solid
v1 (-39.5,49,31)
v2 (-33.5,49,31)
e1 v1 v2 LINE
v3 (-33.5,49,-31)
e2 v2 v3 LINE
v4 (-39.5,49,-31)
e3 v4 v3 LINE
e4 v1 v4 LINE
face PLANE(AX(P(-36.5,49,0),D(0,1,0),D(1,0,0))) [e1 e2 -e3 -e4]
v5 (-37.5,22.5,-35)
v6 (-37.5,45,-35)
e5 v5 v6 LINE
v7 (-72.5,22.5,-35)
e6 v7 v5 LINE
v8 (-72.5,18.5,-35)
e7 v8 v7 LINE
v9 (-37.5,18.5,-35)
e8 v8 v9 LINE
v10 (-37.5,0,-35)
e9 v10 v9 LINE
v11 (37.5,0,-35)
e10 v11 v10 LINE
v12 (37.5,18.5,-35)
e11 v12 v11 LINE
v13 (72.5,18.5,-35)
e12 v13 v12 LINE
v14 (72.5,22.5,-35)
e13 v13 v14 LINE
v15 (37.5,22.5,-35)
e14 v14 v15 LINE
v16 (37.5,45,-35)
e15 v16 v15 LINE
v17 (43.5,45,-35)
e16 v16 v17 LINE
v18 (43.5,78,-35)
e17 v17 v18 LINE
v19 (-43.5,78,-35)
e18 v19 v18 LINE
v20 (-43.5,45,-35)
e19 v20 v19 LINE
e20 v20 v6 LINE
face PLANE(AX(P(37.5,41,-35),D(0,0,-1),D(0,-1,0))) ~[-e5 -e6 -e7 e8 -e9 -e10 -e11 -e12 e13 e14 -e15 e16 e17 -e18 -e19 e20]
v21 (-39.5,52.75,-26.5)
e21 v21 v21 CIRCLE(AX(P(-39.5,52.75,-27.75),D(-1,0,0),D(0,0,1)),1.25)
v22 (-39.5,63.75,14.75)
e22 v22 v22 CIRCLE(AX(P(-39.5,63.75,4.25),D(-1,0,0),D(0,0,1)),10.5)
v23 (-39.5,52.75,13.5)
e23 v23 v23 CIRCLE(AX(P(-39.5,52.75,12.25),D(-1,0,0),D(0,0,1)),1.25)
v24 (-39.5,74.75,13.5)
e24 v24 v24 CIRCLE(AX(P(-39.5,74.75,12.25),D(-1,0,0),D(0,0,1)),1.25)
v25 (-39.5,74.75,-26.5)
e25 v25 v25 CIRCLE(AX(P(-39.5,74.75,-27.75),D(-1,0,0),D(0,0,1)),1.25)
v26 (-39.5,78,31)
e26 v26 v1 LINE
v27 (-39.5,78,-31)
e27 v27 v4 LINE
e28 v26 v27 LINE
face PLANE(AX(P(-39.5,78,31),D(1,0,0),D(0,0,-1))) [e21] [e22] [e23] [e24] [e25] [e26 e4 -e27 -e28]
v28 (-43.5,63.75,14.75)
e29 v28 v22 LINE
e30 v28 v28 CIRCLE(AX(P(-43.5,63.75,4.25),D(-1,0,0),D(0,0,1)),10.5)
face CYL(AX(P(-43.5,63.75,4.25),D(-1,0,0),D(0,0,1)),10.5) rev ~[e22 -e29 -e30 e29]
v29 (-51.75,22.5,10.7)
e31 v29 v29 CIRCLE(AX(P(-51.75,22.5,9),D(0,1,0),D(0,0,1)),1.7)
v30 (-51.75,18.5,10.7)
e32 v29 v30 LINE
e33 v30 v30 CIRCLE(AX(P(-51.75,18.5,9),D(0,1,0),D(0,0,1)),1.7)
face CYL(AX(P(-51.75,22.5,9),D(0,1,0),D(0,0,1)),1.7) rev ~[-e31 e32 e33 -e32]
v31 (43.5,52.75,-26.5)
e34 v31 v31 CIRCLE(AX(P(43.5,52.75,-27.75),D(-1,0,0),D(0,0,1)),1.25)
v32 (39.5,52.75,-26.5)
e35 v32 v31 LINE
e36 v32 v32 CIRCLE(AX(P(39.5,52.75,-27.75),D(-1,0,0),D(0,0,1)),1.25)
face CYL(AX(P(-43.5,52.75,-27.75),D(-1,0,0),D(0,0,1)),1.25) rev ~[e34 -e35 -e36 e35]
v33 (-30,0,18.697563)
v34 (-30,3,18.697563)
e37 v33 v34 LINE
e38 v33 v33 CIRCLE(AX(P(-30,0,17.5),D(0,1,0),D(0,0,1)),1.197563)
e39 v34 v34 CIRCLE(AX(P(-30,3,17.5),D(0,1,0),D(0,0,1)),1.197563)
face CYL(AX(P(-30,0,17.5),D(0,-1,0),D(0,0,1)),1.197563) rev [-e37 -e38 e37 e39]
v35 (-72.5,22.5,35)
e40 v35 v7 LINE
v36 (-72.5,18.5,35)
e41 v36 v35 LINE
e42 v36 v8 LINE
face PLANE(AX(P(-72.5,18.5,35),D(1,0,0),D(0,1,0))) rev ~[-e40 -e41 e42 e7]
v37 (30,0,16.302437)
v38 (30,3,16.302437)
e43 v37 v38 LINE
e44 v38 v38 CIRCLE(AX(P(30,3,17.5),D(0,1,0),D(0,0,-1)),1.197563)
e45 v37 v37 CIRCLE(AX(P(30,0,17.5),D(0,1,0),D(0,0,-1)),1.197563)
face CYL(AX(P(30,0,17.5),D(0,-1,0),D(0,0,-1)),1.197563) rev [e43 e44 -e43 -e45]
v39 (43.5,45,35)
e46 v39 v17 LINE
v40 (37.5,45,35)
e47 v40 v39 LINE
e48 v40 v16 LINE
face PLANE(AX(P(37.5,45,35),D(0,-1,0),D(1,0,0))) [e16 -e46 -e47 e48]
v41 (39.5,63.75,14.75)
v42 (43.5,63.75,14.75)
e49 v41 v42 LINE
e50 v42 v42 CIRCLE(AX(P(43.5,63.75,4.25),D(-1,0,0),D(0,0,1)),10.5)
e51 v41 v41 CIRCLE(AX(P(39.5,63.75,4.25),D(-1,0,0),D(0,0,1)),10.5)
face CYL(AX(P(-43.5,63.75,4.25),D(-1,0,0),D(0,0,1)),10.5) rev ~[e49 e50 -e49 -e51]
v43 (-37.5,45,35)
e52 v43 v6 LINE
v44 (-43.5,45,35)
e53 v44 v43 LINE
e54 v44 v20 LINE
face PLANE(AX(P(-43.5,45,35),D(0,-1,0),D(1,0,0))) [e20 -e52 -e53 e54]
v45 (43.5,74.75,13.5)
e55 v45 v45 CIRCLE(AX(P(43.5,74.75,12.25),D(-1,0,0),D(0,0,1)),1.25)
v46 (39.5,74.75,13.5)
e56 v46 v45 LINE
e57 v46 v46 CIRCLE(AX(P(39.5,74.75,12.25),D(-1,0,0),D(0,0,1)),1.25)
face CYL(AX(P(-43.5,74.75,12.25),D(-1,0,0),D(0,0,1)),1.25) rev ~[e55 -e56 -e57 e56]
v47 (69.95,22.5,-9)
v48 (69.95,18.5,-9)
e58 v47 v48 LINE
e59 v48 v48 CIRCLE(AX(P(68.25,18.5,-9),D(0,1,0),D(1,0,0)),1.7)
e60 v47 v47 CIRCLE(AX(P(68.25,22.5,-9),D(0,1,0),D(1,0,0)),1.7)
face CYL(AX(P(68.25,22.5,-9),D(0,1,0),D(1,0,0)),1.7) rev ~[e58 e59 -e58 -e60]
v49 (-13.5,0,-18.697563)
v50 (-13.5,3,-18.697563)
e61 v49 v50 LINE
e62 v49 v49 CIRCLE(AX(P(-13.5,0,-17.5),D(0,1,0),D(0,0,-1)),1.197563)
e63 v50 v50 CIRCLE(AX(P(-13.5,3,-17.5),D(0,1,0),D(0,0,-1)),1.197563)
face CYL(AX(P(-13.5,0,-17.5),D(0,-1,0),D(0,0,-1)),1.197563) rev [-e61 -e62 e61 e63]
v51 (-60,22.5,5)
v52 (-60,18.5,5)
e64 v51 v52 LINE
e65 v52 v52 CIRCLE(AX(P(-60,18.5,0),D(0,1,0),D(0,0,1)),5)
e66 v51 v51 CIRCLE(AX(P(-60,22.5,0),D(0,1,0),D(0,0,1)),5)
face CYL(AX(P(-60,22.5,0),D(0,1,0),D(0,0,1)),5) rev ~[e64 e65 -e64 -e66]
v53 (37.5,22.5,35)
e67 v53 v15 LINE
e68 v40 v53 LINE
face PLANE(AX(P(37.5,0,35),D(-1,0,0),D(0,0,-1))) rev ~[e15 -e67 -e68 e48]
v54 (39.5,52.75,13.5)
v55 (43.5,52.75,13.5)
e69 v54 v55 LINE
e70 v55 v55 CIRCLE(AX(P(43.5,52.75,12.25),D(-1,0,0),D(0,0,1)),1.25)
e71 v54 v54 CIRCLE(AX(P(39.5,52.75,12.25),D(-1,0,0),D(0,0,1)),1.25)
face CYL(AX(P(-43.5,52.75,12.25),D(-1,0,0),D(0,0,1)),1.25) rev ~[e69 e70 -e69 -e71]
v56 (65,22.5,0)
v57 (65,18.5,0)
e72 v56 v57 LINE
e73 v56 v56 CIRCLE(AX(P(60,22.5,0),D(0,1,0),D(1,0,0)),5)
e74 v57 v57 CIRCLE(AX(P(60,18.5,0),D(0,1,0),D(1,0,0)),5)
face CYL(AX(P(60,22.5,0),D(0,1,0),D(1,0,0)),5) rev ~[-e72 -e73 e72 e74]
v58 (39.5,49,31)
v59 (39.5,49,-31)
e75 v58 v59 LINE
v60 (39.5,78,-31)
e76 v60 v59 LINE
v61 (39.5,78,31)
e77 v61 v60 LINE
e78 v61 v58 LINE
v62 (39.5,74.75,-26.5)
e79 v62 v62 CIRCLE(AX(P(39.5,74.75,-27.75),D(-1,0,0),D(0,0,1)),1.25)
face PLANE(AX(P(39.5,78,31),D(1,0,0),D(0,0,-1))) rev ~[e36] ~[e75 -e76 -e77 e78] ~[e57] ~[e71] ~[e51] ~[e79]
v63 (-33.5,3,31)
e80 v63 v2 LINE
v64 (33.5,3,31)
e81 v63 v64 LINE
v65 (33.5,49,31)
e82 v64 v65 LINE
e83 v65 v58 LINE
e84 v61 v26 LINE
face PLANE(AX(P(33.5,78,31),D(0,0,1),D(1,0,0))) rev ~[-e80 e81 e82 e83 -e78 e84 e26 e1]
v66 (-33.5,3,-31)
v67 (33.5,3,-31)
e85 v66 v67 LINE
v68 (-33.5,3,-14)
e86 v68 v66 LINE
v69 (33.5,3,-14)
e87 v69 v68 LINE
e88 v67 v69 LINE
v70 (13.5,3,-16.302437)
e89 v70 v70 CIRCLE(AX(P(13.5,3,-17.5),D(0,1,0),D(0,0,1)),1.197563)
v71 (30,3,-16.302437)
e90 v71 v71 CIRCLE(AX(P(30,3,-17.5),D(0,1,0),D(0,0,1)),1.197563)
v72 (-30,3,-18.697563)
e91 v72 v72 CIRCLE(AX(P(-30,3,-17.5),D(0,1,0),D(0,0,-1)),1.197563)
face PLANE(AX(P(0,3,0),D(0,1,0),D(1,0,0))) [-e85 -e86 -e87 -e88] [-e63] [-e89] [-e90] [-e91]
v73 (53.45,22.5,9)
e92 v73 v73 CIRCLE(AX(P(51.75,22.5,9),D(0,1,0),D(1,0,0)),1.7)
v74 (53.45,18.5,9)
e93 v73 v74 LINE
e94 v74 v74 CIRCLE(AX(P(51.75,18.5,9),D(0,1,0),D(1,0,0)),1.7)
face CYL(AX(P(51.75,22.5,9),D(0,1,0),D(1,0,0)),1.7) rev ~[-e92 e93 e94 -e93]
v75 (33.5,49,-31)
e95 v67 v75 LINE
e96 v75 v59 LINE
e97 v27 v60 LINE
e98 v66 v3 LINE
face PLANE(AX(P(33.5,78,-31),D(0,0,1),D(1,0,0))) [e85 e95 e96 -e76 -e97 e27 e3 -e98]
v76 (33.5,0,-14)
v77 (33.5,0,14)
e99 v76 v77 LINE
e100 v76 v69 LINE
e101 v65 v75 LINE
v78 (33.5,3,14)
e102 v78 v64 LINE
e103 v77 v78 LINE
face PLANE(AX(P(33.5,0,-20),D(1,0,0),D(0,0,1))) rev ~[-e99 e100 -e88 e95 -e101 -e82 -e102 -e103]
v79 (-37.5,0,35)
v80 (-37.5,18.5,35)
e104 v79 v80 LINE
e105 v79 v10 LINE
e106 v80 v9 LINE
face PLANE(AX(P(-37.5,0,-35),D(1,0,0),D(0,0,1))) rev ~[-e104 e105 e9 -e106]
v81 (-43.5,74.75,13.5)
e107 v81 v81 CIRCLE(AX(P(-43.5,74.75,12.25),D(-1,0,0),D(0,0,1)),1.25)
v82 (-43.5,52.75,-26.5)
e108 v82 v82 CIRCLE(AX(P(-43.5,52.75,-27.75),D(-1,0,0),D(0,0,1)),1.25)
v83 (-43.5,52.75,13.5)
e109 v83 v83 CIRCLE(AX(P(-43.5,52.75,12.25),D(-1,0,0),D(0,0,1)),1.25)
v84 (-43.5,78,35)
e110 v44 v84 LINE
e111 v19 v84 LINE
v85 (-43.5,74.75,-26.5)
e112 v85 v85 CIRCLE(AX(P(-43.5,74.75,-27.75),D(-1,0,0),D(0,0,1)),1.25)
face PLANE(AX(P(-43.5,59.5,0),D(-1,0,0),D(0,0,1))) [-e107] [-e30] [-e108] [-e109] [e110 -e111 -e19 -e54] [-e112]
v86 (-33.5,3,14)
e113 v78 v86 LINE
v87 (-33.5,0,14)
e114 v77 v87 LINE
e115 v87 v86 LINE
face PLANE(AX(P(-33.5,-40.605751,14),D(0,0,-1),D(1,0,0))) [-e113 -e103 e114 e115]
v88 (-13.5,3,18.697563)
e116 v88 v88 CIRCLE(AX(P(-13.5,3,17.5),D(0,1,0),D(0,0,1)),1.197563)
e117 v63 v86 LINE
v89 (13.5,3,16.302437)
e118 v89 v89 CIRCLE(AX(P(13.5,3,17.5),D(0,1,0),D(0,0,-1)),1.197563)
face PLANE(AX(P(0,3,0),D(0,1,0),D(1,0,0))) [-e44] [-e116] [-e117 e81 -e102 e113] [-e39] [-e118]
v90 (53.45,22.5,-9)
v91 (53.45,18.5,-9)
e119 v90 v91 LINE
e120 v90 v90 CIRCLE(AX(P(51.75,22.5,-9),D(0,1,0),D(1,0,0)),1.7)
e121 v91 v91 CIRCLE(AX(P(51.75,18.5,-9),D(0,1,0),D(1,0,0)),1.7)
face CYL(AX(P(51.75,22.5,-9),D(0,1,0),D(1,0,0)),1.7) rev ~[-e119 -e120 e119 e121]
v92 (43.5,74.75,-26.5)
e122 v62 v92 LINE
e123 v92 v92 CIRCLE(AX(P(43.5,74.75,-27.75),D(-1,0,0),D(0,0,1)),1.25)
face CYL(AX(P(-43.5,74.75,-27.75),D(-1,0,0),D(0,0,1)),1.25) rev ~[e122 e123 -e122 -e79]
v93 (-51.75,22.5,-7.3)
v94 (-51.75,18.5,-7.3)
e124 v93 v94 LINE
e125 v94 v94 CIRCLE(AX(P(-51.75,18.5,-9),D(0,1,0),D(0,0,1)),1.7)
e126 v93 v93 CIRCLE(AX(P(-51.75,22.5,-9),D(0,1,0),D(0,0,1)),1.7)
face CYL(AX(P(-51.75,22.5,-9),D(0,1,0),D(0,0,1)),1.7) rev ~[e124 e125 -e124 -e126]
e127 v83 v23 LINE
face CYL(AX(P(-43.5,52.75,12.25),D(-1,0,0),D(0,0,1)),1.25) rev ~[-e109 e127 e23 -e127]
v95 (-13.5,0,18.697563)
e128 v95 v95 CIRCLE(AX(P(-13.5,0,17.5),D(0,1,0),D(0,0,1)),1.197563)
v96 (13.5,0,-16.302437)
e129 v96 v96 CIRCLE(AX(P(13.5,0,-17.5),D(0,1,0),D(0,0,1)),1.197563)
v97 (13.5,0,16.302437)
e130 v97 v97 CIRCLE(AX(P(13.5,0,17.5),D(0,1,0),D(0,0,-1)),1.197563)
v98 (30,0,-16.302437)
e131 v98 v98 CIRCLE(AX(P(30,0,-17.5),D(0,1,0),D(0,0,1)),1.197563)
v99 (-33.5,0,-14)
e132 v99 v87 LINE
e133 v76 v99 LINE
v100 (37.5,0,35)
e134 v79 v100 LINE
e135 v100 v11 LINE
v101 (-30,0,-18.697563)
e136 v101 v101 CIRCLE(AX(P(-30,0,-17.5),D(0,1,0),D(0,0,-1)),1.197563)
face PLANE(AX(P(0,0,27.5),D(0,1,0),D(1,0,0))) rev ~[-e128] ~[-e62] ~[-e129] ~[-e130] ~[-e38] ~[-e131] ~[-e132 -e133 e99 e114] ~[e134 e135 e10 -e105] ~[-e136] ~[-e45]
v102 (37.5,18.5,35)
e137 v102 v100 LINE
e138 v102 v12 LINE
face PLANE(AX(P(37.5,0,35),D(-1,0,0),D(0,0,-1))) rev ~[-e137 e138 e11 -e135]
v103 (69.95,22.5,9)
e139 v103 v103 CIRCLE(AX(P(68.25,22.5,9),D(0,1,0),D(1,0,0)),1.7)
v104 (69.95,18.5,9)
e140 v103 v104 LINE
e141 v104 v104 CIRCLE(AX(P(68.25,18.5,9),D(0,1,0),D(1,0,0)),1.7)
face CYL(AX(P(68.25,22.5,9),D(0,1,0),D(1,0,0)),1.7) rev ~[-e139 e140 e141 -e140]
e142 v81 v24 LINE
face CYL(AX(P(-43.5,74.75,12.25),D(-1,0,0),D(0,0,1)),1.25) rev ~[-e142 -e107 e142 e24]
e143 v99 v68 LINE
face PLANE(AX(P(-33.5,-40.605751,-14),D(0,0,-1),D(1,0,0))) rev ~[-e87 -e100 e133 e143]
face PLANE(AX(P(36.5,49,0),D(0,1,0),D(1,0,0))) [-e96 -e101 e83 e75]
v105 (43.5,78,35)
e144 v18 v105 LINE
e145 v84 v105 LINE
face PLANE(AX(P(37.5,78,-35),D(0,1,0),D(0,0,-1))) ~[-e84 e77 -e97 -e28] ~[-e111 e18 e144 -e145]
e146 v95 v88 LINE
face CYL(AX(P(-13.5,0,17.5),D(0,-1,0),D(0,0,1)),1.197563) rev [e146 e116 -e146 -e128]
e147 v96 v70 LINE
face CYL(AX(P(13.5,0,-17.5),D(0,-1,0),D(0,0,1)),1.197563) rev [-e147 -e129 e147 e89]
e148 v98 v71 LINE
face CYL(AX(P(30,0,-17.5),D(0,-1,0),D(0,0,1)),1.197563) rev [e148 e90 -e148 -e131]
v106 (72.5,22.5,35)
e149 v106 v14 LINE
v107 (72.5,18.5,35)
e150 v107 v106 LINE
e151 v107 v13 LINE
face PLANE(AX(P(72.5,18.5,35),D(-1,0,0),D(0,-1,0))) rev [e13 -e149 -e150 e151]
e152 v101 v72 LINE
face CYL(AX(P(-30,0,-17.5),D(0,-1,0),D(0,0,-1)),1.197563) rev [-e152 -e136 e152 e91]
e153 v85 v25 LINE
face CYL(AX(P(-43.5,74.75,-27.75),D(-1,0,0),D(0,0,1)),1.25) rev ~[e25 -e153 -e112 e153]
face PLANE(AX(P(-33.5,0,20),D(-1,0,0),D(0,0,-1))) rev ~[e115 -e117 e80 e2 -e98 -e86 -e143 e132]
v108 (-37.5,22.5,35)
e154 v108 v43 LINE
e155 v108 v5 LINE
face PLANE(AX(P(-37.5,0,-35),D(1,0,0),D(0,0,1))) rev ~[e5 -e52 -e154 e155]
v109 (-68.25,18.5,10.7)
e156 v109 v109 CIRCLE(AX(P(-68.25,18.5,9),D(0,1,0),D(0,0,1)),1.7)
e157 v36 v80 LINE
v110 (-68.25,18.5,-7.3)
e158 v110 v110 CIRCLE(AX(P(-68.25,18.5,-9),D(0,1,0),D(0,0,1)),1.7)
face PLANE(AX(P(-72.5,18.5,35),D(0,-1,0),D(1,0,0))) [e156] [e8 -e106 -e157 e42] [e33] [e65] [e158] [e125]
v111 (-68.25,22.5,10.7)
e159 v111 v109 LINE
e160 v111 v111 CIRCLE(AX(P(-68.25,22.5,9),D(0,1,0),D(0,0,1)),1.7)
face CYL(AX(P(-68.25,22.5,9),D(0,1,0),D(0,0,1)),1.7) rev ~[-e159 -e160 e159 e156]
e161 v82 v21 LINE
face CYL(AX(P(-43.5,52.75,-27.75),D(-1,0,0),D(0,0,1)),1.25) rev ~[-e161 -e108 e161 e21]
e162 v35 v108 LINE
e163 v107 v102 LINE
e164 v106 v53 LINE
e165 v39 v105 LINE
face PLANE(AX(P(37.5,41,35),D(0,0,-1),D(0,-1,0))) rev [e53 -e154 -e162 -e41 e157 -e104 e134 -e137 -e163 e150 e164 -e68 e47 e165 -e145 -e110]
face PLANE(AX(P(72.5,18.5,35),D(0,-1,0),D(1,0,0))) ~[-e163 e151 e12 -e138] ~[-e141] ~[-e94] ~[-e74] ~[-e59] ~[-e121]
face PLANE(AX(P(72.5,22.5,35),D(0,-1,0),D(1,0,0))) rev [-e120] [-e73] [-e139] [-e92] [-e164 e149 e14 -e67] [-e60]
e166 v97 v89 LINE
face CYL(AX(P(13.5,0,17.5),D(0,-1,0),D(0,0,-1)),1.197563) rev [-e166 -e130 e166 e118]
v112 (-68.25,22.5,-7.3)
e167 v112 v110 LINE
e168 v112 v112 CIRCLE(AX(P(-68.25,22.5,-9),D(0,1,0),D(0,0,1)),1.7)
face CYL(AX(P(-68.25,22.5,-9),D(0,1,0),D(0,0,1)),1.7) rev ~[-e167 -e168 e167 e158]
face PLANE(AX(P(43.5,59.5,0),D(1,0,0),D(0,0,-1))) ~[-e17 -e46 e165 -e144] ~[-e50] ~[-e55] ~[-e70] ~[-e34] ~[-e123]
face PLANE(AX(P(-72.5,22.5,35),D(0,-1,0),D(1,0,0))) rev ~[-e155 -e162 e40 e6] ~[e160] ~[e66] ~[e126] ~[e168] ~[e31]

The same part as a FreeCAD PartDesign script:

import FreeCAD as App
import Part
import Sketcher
from FreeCAD import Vector

doc = App.newDocument("Part")
body = doc.addObject("PartDesign::Body", "Body")

# Sketch on XZ plane
sketch1 = body.newObject("Sketcher::SketchObject", "Sketch")
sketch1.AttachmentSupport = (doc.getObject("XZ_Plane"), [""])
sketch1.MapMode = "FlatFace"
sketch1.addGeometry([
    Part.LineSegment(Vector(-37.5, -20, 0), Vector(-37.5, 20, 0)),  # 0
    Part.LineSegment(Vector(-37.5, 20, 0), Vector(37.5, 20, 0)),  # 1
    Part.LineSegment(Vector(37.5, 20, 0), Vector(37.5, -20, 0)),  # 2
    Part.LineSegment(Vector(37.5, -20, 0), Vector(-37.5, -20, 0)),  # 3
    Part.Circle(Vector(-30, 17.5, 0), Vector(0, 0, 1), 1.2),  # 4
    Part.Circle(Vector(-13.5, 17.5, 0), Vector(0, 0, 1), 1.2),  # 5
    Part.Circle(Vector(-30, 8.2, 0), Vector(0, 0, 1), 1.7),  # 6
    Part.Circle(Vector(-12, 8.2, 0), Vector(0, 0, 1), 1.7),  # 7
    Part.Circle(Vector(13.5, 17.5, 0), Vector(0, 0, 1), 1.2),  # 8
    Part.Circle(Vector(30, 17.5, 0), Vector(0, 0, 1), 1.2),  # 9
    Part.Circle(Vector(12, 8.2, 0), Vector(0, 0, 1), 1.7),  # 10
    Part.Circle(Vector(30, 8.2, 0), Vector(0, 0, 1), 1.7),  # 11
    Part.Circle(Vector(-21, 0, 0), Vector(0, 0, 1), 5),  # 12
    Part.Circle(Vector(-30, -8.2, 0), Vector(0, 0, 1), 1.7),  # 13
    Part.LineSegment(Vector(2.5, 10, 0), Vector(-2.5, 10, 0)),  # 14
    Part.LineSegment(Vector(-2.5, 10, 0), Vector(-2.5, -10, 0)),  # 15
    Part.LineSegment(Vector(-2.5, -10, 0), Vector(2.5, -10, 0)),  # 16
    Part.LineSegment(Vector(2.5, -10, 0), Vector(2.5, 10, 0)),  # 17
    Part.Circle(Vector(-12, -8.2, 0), Vector(0, 0, 1), 1.7),  # 18
    Part.Circle(Vector(-30, -17.5, 0), Vector(0, 0, 1), 1.2),  # 19
    Part.Circle(Vector(-13.5, -17.5, 0), Vector(0, 0, 1), 1.2),  # 20
    Part.Circle(Vector(12, -8.2, 0), Vector(0, 0, 1), 1.7),  # 21
    Part.Circle(Vector(21, 0, 0), Vector(0, 0, 1), 5),  # 22
    Part.Circle(Vector(30, -8.2, 0), Vector(0, 0, 1), 1.7),  # 23
    Part.Circle(Vector(13.5, -17.5, 0), Vector(0, 0, 1), 1.2),  # 24
    Part.Circle(Vector(30, -17.5, 0), Vector(0, 0, 1), 1.2),  # 25
], False)
sketch1.addConstraint([
    Sketcher.Constraint("Coincident", 0, 2, 1, 1),
    Sketcher.Constraint("Coincident", 1, 2, 2, 1),
    Sketcher.Constraint("Coincident", 2, 2, 3, 1),
    Sketcher.Constraint("Coincident", 3, 2, 0, 1),
    Sketcher.Constraint("Coincident", 14, 2, 15, 1),
    Sketcher.Constraint("Coincident", 15, 2, 16, 1),
    Sketcher.Constraint("Coincident", 16, 2, 17, 1),
    Sketcher.Constraint("Coincident", 17, 2, 14, 1),
    Sketcher.Constraint("Vertical", 0),
    Sketcher.Constraint("Horizontal", 1),
    Sketcher.Constraint("Vertical", 2),
    Sketcher.Constraint("Horizontal", 3),
    Sketcher.Constraint("Horizontal", 14),
    Sketcher.Constraint("Vertical", 15),
    Sketcher.Constraint("Horizontal", 16),
    Sketcher.Constraint("Vertical", 17),
    Sketcher.Constraint("Equal", 4, 5),
    Sketcher.Constraint("Equal", 6, 7),
    Sketcher.Constraint("Equal", 5, 8),
    Sketcher.Constraint("Equal", 8, 9),
    Sketcher.Constraint("Equal", 7, 10),
    Sketcher.Constraint("Equal", 10, 11),
    Sketcher.Constraint("Equal", 11, 13),
    Sketcher.Constraint("Equal", 13, 18),
    Sketcher.Constraint("Equal", 9, 19),
    Sketcher.Constraint("Equal", 19, 20),
    Sketcher.Constraint("Equal", 18, 21),
    Sketcher.Constraint("Equal", 12, 22),
    Sketcher.Constraint("Equal", 21, 23),
    Sketcher.Constraint("Equal", 20, 24),
    Sketcher.Constraint("Equal", 24, 25),
    Sketcher.Constraint("Symmetric", 11, 3, 13, 3, -1, 1),
    Sketcher.Constraint("Symmetric", 10, 3, 18, 3, -1, 1),
    Sketcher.Constraint("Symmetric", 9, 3, 19, 3, -1, 1),
    Sketcher.Constraint("Symmetric", 8, 3, 20, 3, -1, 1),
    Sketcher.Constraint("Symmetric", 7, 3, 21, 3, -1, 1),
    Sketcher.Constraint("Symmetric", 12, 3, 22, 3, -1, 1),
    Sketcher.Constraint("Symmetric", 6, 3, 23, 3, -1, 1),
    Sketcher.Constraint("Symmetric", 5, 3, 24, 3, -1, 1),
    Sketcher.Constraint("Symmetric", 4, 3, 25, 3, -1, 1),
    Sketcher.Constraint("Symmetric", 0, 2, 2, 2, -1, 1),
    Sketcher.Constraint("Symmetric", 14, 2, 16, 2, -1, 1),
    Sketcher.Constraint("Symmetric", 5, 3, 8, 3, -2),
    Sketcher.Constraint("Symmetric", 4, 3, 9, 3, -2),
    Sketcher.Constraint("Symmetric", 7, 3, 10, 3, -2),
    Sketcher.Constraint("Symmetric", 6, 3, 11, 3, -2),
    Sketcher.Constraint("PointOnObject", 12, 3, -1),
    Sketcher.Constraint("Horizontal", 4, 3, 5, 3),
    Sketcher.Constraint("Horizontal", 6, 3, 7, 3),
    Sketcher.Constraint("Vertical", 4, 3, 6, 3),
    Sketcher.Constraint("Diameter", 12, 10.0),
    Sketcher.Constraint("Diameter", 6, 3.4),
    Sketcher.Constraint("DistanceX", 1, 1, 1, 2, 75.0),
    Sketcher.Constraint("DistanceX", 14, 2, 14, 1, 5.0),
    Sketcher.Constraint("DistanceY", 0, 1, 0, 2, 40.0),
    Sketcher.Constraint("DistanceY", 15, 2, 15, 1, 20.0),
    Sketcher.Constraint("DistanceX", 4, 3, -1, 1, 30.0),
    Sketcher.Constraint("DistanceX", 7, 3, -1, 1, 12.0),
    Sketcher.Constraint("DistanceX", 12, 3, -1, 1, 21.0),
    Sketcher.Constraint("DistanceX", 5, 3, 8, 3, 27.0),
    Sketcher.Constraint("DistanceY", -1, 1, 4, 3, 17.5),
    Sketcher.Constraint("DistanceY", 13, 3, 6, 3, 16.5),
    Sketcher.Constraint("Diameter", 4, 2.395127),
])
pad1 = body.newObject("PartDesign::Pad", "Pad")
pad1.Profile = sketch1
pad1.Length = 3
pad1.Reversed = True

# Sketch on XZ plane
sketch2 = body.newObject("Sketcher::SketchObject", "Sketch001")
sketch2.AttachmentSupport = (doc.getObject("XZ_Plane"), [""])
sketch2.MapMode = "FlatFace"
sketch2.AttachmentOffset = App.Placement(Vector(0, 0, -3), App.Rotation())
sketch2.addGeometry([
    Part.LineSegment(Vector(-34, -14, 0), Vector(-34, 14, 0)),
    Part.LineSegment(Vector(-34, 14, 0), Vector(34, 14, 0)),
    Part.LineSegment(Vector(34, 14, 0), Vector(34, -14, 0)),
    Part.LineSegment(Vector(34, -14, 0), Vector(-34, -14, 0)),
], False)
sketch2.addConstraint([
    Sketcher.Constraint("Coincident", 0, 2, 1, 1),
    Sketcher.Constraint("Coincident", 1, 2, 2, 1),
    Sketcher.Constraint("Coincident", 2, 2, 3, 1),
    Sketcher.Constraint("Coincident", 3, 2, 0, 1),
    Sketcher.Constraint("Vertical", 0),
    Sketcher.Constraint("Horizontal", 1),
    Sketcher.Constraint("Vertical", 2),
    Sketcher.Constraint("Horizontal", 3),
    Sketcher.Constraint("Symmetric", 0, 2, 2, 2, -1, 1),
    Sketcher.Constraint("DistanceX", 1, 1, 1, 2, 67.0),
    Sketcher.Constraint("DistanceY", 0, 1, 0, 2, 28.0),
])
pocket1 = body.newObject("PartDesign::Pocket", "Pocket")
pocket1.Profile = sketch2
pocket1.Type = "ThroughAll"
pocket1.Midplane = True

# Sketch on XZ plane
sketch3 = body.newObject("Sketcher::SketchObject", "Sketch002")
sketch3.AttachmentSupport = (doc.getObject("XZ_Plane"), [""])
sketch3.MapMode = "FlatFace"
sketch3.AttachmentOffset = App.Placement(Vector(0, 0, -3), App.Rotation())
sketch3.addGeometry([
    Part.LineSegment(Vector(38, 35, 0), Vector(38, -35, 0)),  # 0
    Part.LineSegment(Vector(38, -35, 0), Vector(-38, -35, 0)),  # 1
    Part.LineSegment(Vector(-38, -35, 0), Vector(-38, 35, 0)),  # 2
    Part.LineSegment(Vector(-38, 35, 0), Vector(38, 35, 0)),  # 3
    Part.LineSegment(Vector(-34, -20, 0), Vector(34, -20, 0)),  # 4
    Part.LineSegment(Vector(34, -20, 0), Vector(34, 20, 0)),  # 5
    Part.LineSegment(Vector(34, 20, 0), Vector(-34, 20, 0)),  # 6
    Part.LineSegment(Vector(-34, 20, 0), Vector(-34, -20, 0)),  # 7
], False)
sketch3.addConstraint([
    Sketcher.Constraint("Coincident", 0, 2, 1, 1),
    Sketcher.Constraint("Coincident", 1, 2, 2, 1),
    Sketcher.Constraint("Coincident", 2, 2, 3, 1),
    Sketcher.Constraint("Coincident", 3, 2, 0, 1),
    Sketcher.Constraint("Coincident", 4, 2, 5, 1),
    Sketcher.Constraint("Coincident", 5, 2, 6, 1),
    Sketcher.Constraint("Coincident", 6, 2, 7, 1),
    Sketcher.Constraint("Coincident", 7, 2, 4, 1),
    Sketcher.Constraint("Vertical", 0),
    Sketcher.Constraint("Horizontal", 1),
    Sketcher.Constraint("Vertical", 2),
    Sketcher.Constraint("Horizontal", 3),
    Sketcher.Constraint("Horizontal", 4),
    Sketcher.Constraint("Vertical", 5),
    Sketcher.Constraint("Horizontal", 6),
    Sketcher.Constraint("Vertical", 7),
    Sketcher.Constraint("Symmetric", 0, 2, 2, 2, -1, 1),
    Sketcher.Constraint("Symmetric", 4, 2, 6, 2, -1, 1),
    Sketcher.Constraint("DistanceX", 1, 2, 1, 1, 75.0),
    Sketcher.Constraint("DistanceX", 4, 1, 4, 2, 67.0),
    Sketcher.Constraint("DistanceY", 0, 2, 0, 1, 70.0),
    Sketcher.Constraint("DistanceY", 5, 1, 5, 2, 40.0),
])
pad2 = body.newObject("PartDesign::Pad", "Pad001")
pad2.Profile = sketch3
pad2.Type = "TwoLengths"
pad2.Length = 75
pad2.Length2 = 3
pad2.Reversed = True

# Sketch on XZ plane
sketch4 = body.newObject("Sketcher::SketchObject", "Sketch003")
sketch4.AttachmentSupport = (doc.getObject("XZ_Plane"), [""])
sketch4.MapMode = "FlatFace"
sketch4.AttachmentOffset = App.Placement(Vector(0, 0, -3), App.Rotation())
sketch4.addGeometry([
    Part.LineSegment(Vector(-34, 20, 0), Vector(-34, 31, 0)),  # 0
    Part.LineSegment(Vector(-34, 31, 0), Vector(34, 31, 0)),  # 1
    Part.LineSegment(Vector(34, 31, 0), Vector(34, 20, 0)),  # 2
    Part.LineSegment(Vector(34, 20, 0), Vector(-34, 20, 0)),  # 3
    Part.LineSegment(Vector(-34, -31, 0), Vector(-34, -20, 0)),  # 4
    Part.LineSegment(Vector(-34, -20, 0), Vector(34, -20, 0)),  # 5
    Part.LineSegment(Vector(34, -20, 0), Vector(34, -31, 0)),  # 6
    Part.LineSegment(Vector(34, -31, 0), Vector(-34, -31, 0)),  # 7
], False)
sketch4.addConstraint([
    Sketcher.Constraint("Coincident", 0, 2, 1, 1),
    Sketcher.Constraint("Coincident", 1, 2, 2, 1),
    Sketcher.Constraint("Coincident", 2, 2, 3, 1),
    Sketcher.Constraint("Coincident", 3, 2, 0, 1),
    Sketcher.Constraint("Coincident", 4, 2, 5, 1),
    Sketcher.Constraint("Coincident", 5, 2, 6, 1),
    Sketcher.Constraint("Coincident", 6, 2, 7, 1),
    Sketcher.Constraint("Coincident", 7, 2, 4, 1),
    Sketcher.Constraint("Vertical", 0),
    Sketcher.Constraint("Horizontal", 1),
    Sketcher.Constraint("Vertical", 2),
    Sketcher.Constraint("Horizontal", 3),
    Sketcher.Constraint("Vertical", 4),
    Sketcher.Constraint("Horizontal", 5),
    Sketcher.Constraint("Vertical", 6),
    Sketcher.Constraint("Horizontal", 7),
    Sketcher.Constraint("Symmetric", 2, 2, 4, 2, -1, 1),
    Sketcher.Constraint("Symmetric", 0, 2, 6, 2, -1, 1),
    Sketcher.Constraint("Vertical", 3, 2, 4, 2),
    Sketcher.Constraint("DistanceX", 1, 1, 1, 2, 67.0),
    Sketcher.Constraint("DistanceY", 0, 1, 0, 2, 11.0),
    Sketcher.Constraint("DistanceY", -1, 1, 0, 2, 31.0),
])
pocket2 = body.newObject("PartDesign::Pocket", "Pocket001")
pocket2.Profile = sketch4
pocket2.Type = "ThroughAll"

# Sketch on YZ plane
sketch5 = body.newObject("Sketcher::SketchObject", "Sketch004")
sketch5.AttachmentSupport = (doc.getObject("YZ_Plane"), [""])
sketch5.MapMode = "FlatFace"
sketch5.AttachmentOffset = App.Placement(Vector(0, 0, -37.5), App.Rotation())
sketch5.addGeometry([
    Part.LineSegment(Vector(78, -35, 0), Vector(41, -35, 0)),
    Part.LineSegment(Vector(41, -35, 0), Vector(41, 35, 0)),
    Part.LineSegment(Vector(41, 35, 0), Vector(78, 35, 0)),
    Part.LineSegment(Vector(78, 35, 0), Vector(78, -35, 0)),
], False)
sketch5.addConstraint([
    Sketcher.Constraint("Coincident", 0, 2, 1, 1),
    Sketcher.Constraint("Coincident", 1, 2, 2, 1),
    Sketcher.Constraint("Coincident", 2, 2, 3, 1),
    Sketcher.Constraint("Coincident", 3, 2, 0, 1),
    Sketcher.Constraint("Horizontal", 0),
    Sketcher.Constraint("Vertical", 1),
    Sketcher.Constraint("Horizontal", 2),
    Sketcher.Constraint("Vertical", 3),
    Sketcher.Constraint("DistanceX", 0, 2, 0, 1, 37.0),
    Sketcher.Constraint("DistanceY", 1, 1, 1, 2, 70.0),
    Sketcher.Constraint("DistanceX", -1, 1, 0, 2, 41.0),
    Sketcher.Constraint("DistanceY", 0, 2, -1, 1, 35.0),
])
pad3 = body.newObject("PartDesign::Pad", "Pad002")
pad3.Profile = sketch5
pad3.Length = 6
pad3.Reversed = True
doc.recompute()

mirrored = body.newObject("PartDesign::Mirrored", "Mirrored")
mirrored.Originals = [pad3]
mirrored.MirrorPlane = (doc.getObject("YZ_Plane"), [""])
body.Tip = mirrored

# Sketch on XZ plane
sketch6 = body.newObject("Sketcher::SketchObject", "Sketch005")
sketch6.AttachmentSupport = (doc.getObject("XZ_Plane"), [""])
sketch6.MapMode = "FlatFace"
sketch6.AttachmentOffset = App.Placement(Vector(0, 0, -78), App.Rotation())
sketch6.addGeometry([
    Part.LineSegment(Vector(-40, -31, 0), Vector(-40, 31, 0)),  # 0
    Part.LineSegment(Vector(-40, 31, 0), Vector(-34, 31, 0)),  # 1
    Part.LineSegment(Vector(-34, 31, 0), Vector(-34, -31, 0)),  # 2
    Part.LineSegment(Vector(-34, -31, 0), Vector(-40, -31, 0)),  # 3
    Part.LineSegment(Vector(34, -31, 0), Vector(34, 31, 0)),  # 4
    Part.LineSegment(Vector(34, 31, 0), Vector(40, 31, 0)),  # 5
    Part.LineSegment(Vector(40, 31, 0), Vector(40, -31, 0)),  # 6
    Part.LineSegment(Vector(40, -31, 0), Vector(34, -31, 0)),  # 7
], False)
sketch6.addConstraint([
    Sketcher.Constraint("Coincident", 0, 2, 1, 1),
    Sketcher.Constraint("Coincident", 1, 2, 2, 1),
    Sketcher.Constraint("Coincident", 2, 2, 3, 1),
    Sketcher.Constraint("Coincident", 3, 2, 0, 1),
    Sketcher.Constraint("Coincident", 4, 2, 5, 1),
    Sketcher.Constraint("Coincident", 5, 2, 6, 1),
    Sketcher.Constraint("Coincident", 6, 2, 7, 1),
    Sketcher.Constraint("Coincident", 7, 2, 4, 1),
    Sketcher.Constraint("Vertical", 0),
    Sketcher.Constraint("Horizontal", 1),
    Sketcher.Constraint("Vertical", 2),
    Sketcher.Constraint("Horizontal", 3),
    Sketcher.Constraint("Vertical", 4),
    Sketcher.Constraint("Horizontal", 5),
    Sketcher.Constraint("Vertical", 6),
    Sketcher.Constraint("Horizontal", 7),
    Sketcher.Constraint("Symmetric", 2, 2, 4, 2, -1, 1),
    Sketcher.Constraint("Symmetric", 0, 2, 6, 2, -1, 1),
    Sketcher.Constraint("Horizontal", 1, 2, 4, 2),
    Sketcher.Constraint("DistanceX", 1, 1, 1, 2, 6.0),
    Sketcher.Constraint("DistanceY", 0, 1, 0, 2, 62.0),
    Sketcher.Constraint("DistanceX", 1, 2, 4, 2, 67.0),
])
pocket3 = body.newObject("PartDesign::Pocket", "Pocket002")
pocket3.Profile = sketch6
pocket3.Length = 29
pocket3.Reversed = True

# Sketch on YZ plane
sketch7 = body.newObject("Sketcher::SketchObject", "Sketch006")
sketch7.AttachmentSupport = (doc.getObject("YZ_Plane"), [""])
sketch7.MapMode = "FlatFace"
sketch7.AttachmentOffset = App.Placement(Vector(0, 0, -43.5), App.Rotation())
sketch7.addGeometry([
    Part.Circle(Vector(74.8, -27.8, 0), Vector(0, 0, 1), 1.2),  # 0
    Part.Circle(Vector(52.8, -27.8, 0), Vector(0, 0, 1), 1.2),  # 1
    Part.Circle(Vector(63.8, 4.2, 0), Vector(0, 0, 1), 10.5),  # 2
    Part.Circle(Vector(52.8, 12.2, 0), Vector(0, 0, 1), 1.2),  # 3
    Part.Circle(Vector(74.8, 12.2, 0), Vector(0, 0, 1), 1.2),  # 4
], False)
sketch7.addConstraint([
    Sketcher.Constraint("Equal", 0, 1),
    Sketcher.Constraint("Equal", 1, 3),
    Sketcher.Constraint("Equal", 3, 4),
    Sketcher.Constraint("Horizontal", 0, 3, 1, 3),
    Sketcher.Constraint("Horizontal", 3, 3, 4, 3),
    Sketcher.Constraint("Vertical", 1, 3, 3, 3),
    Sketcher.Constraint("Vertical", 0, 3, 4, 3),
    Sketcher.Constraint("Diameter", 2, 21.0),
    Sketcher.Constraint("Diameter", 0, 2.5),
    Sketcher.Constraint("DistanceX", 1, 3, 0, 3, 22.0),
    Sketcher.Constraint("DistanceX", 2, 3, 0, 3, 11.0),
    Sketcher.Constraint("DistanceY", 0, 3, 2, 3, 32.0),
    Sketcher.Constraint("DistanceY", 2, 3, 3, 3, 8.0),
    Sketcher.Constraint("DistanceX", -1, 1, 0, 3, 74.75),
    Sketcher.Constraint("DistanceY", 0, 3, -1, 1, 27.75),
])
pocket4 = body.newObject("PartDesign::Pocket", "Pocket003")
pocket4.Profile = sketch7
pocket4.Type = "ThroughAll"
pocket4.Reversed = True

# Sketch on XY plane
sketch8 = body.newObject("Sketcher::SketchObject", "Sketch007")
sketch8.AttachmentSupport = (doc.getObject("XY_Plane"), [""])
sketch8.MapMode = "FlatFace"
sketch8.AttachmentOffset = App.Placement(Vector(0, 0, 35), App.Rotation())
sketch8.addGeometry([
    Part.LineSegment(Vector(-43.5, 45, 0), Vector(-43.5, 41, 0)),  # 0
    Part.LineSegment(Vector(-43.5, 41, 0), Vector(-37.5, 41, 0)),  # 1
    Part.LineSegment(Vector(-37.5, 41, 0), Vector(-37.5, 45, 0)),  # 2
    Part.LineSegment(Vector(-37.5, 45, 0), Vector(-43.5, 45, 0)),  # 3
    Part.LineSegment(Vector(37.5, 45, 0), Vector(37.5, 41, 0)),  # 4
    Part.LineSegment(Vector(37.5, 41, 0), Vector(43.5, 41, 0)),  # 5
    Part.LineSegment(Vector(43.5, 41, 0), Vector(43.5, 45, 0)),  # 6
    Part.LineSegment(Vector(43.5, 45, 0), Vector(37.5, 45, 0)),  # 7
], False)
sketch8.addConstraint([
    Sketcher.Constraint("Coincident", 0, 2, 1, 1),
    Sketcher.Constraint("Coincident", 1, 2, 2, 1),
    Sketcher.Constraint("Coincident", 2, 2, 3, 1),
    Sketcher.Constraint("Coincident", 3, 2, 0, 1),
    Sketcher.Constraint("Coincident", 4, 2, 5, 1),
    Sketcher.Constraint("Coincident", 5, 2, 6, 1),
    Sketcher.Constraint("Coincident", 6, 2, 7, 1),
    Sketcher.Constraint("Coincident", 7, 2, 4, 1),
    Sketcher.Constraint("Vertical", 0),
    Sketcher.Constraint("Horizontal", 1),
    Sketcher.Constraint("Vertical", 2),
    Sketcher.Constraint("Horizontal", 3),
    Sketcher.Constraint("Vertical", 4),
    Sketcher.Constraint("Horizontal", 5),
    Sketcher.Constraint("Vertical", 6),
    Sketcher.Constraint("Horizontal", 7),
    Sketcher.Constraint("Symmetric", 1, 2, 4, 2, -2),
    Sketcher.Constraint("Symmetric", 3, 2, 6, 2, -2),
    Sketcher.Constraint("DistanceX", 1, 1, 1, 2, 6.0),
    Sketcher.Constraint("DistanceY", 0, 2, 0, 1, 4.0),
    Sketcher.Constraint("DistanceY", -1, 1, 0, 2, 41.0),
    Sketcher.Constraint("DistanceX", 1, 2, 4, 2, 75.0),
])
pocket5 = body.newObject("PartDesign::Pocket", "Pocket004")
pocket5.Profile = sketch8
pocket5.Type = "ThroughAll"

# Sketch on XY plane
sketch9 = body.newObject("Sketcher::SketchObject", "Sketch008")
sketch9.AttachmentSupport = (doc.getObject("XY_Plane"), [""])
sketch9.MapMode = "FlatFace"
sketch9.AttachmentOffset = App.Placement(Vector(0, 0, 35), App.Rotation())
sketch9.addGeometry([
    Part.LineSegment(Vector(-72.5, 22.5, 0), Vector(-72.5, 18.5, 0)),
    Part.LineSegment(Vector(-72.5, 18.5, 0), Vector(-37.5, 18.5, 0)),
    Part.LineSegment(Vector(-37.5, 18.5, 0), Vector(-37.5, 22.5, 0)),
    Part.LineSegment(Vector(-37.5, 22.5, 0), Vector(-72.5, 22.5, 0)),
], False)
sketch9.addConstraint([
    Sketcher.Constraint("Coincident", 0, 2, 1, 1),
    Sketcher.Constraint("Coincident", 1, 2, 2, 1),
    Sketcher.Constraint("Coincident", 2, 2, 3, 1),
    Sketcher.Constraint("Coincident", 3, 2, 0, 1),
    Sketcher.Constraint("Vertical", 0),
    Sketcher.Constraint("Horizontal", 1),
    Sketcher.Constraint("Vertical", 2),
    Sketcher.Constraint("Horizontal", 3),
    Sketcher.Constraint("DistanceX", 1, 1, 1, 2, 35.0),
    Sketcher.Constraint("DistanceY", 0, 2, 0, 1, 4.0),
    Sketcher.Constraint("DistanceX", 0, 2, -1, 1, 72.5),
    Sketcher.Constraint("DistanceY", -1, 1, 0, 2, 18.5),
])
pad4 = body.newObject("PartDesign::Pad", "Pad003")
pad4.Profile = sketch9
pad4.Length = 70
pad4.Reversed = True
doc.recompute()

mirrored2 = body.newObject("PartDesign::Mirrored", "Mirrored001")
mirrored2.Originals = [pad4]
mirrored2.MirrorPlane = (doc.getObject("YZ_Plane"), [""])
body.Tip = mirrored2

# Sketch on XZ plane
sketch10 = body.newObject("Sketcher::SketchObject", "Sketch009")
sketch10.AttachmentSupport = (doc.getObject("XZ_Plane"), [""])
sketch10.MapMode = "FlatFace"
sketch10.AttachmentOffset = App.Placement(Vector(0, 0, -22.5), App.Rotation())
sketch10.addGeometry([
    Part.Circle(Vector(-60, 0, 0), Vector(0, 0, 1), 5),  # 0
    Part.Circle(Vector(-68.2, -9, 0), Vector(0, 0, 1), 1.7),  # 1
    Part.Circle(Vector(-51.8, -9, 0), Vector(0, 0, 1), 1.7),  # 2
    Part.Circle(Vector(-51.8, 9, 0), Vector(0, 0, 1), 1.7),  # 3
    Part.Circle(Vector(-68.2, 9, 0), Vector(0, 0, 1), 1.7),  # 4
    Part.Circle(Vector(68.2, 9, 0), Vector(0, 0, 1), 1.7),  # 5
    Part.Circle(Vector(51.8, 9, 0), Vector(0, 0, 1), 1.7),  # 6
    Part.Circle(Vector(51.8, -9, 0), Vector(0, 0, 1), 1.7),  # 7
    Part.Circle(Vector(68.2, -9, 0), Vector(0, 0, 1), 1.7),  # 8
    Part.Circle(Vector(60, 0, 0), Vector(0, 0, 1), 5),  # 9
], False)
sketch10.addConstraint([
    Sketcher.Constraint("Equal", 1, 2),
    Sketcher.Constraint("Equal", 2, 3),
    Sketcher.Constraint("Equal", 3, 4),
    Sketcher.Constraint("Equal", 4, 5),
    Sketcher.Constraint("Equal", 5, 6),
    Sketcher.Constraint("Equal", 6, 7),
    Sketcher.Constraint("Equal", 7, 8),
    Sketcher.Constraint("Equal", 0, 9),
    Sketcher.Constraint("Symmetric", 1, 3, 5, 3, -1, 1),
    Sketcher.Constraint("Symmetric", 2, 3, 6, 3, -1, 1),
    Sketcher.Constraint("Symmetric", 3, 3, 7, 3, -1, 1),
    Sketcher.Constraint("Symmetric", 4, 3, 8, 3, -1, 1),
    Sketcher.Constraint("Symmetric", 0, 3, 9, 3, -1, 1),
    Sketcher.Constraint("Symmetric", 4, 3, 5, 3, -2),
    Sketcher.Constraint("Symmetric", 3, 3, 6, 3, -2),
    Sketcher.Constraint("PointOnObject", 0, 3, -1),
    Sketcher.Constraint("Horizontal", 1, 3, 2, 3),
    Sketcher.Constraint("Diameter", 0, 10.0),
    Sketcher.Constraint("Diameter", 1, 3.4),
    Sketcher.Constraint("DistanceX", 0, 3, -1, 1, 60.0),
    Sketcher.Constraint("DistanceY", 1, 3, -1, 1, 9.0),
    Sketcher.Constraint("DistanceX", 3, 3, 5, 3, 120.0),
    Sketcher.Constraint("DistanceX", 1, 3, 2, 3, 16.5),
])
pocket6 = body.newObject("PartDesign::Pocket", "Pocket005")
pocket6.Profile = sketch10
pocket6.Length = 10
pocket6.Reversed = True

doc.recompute()
